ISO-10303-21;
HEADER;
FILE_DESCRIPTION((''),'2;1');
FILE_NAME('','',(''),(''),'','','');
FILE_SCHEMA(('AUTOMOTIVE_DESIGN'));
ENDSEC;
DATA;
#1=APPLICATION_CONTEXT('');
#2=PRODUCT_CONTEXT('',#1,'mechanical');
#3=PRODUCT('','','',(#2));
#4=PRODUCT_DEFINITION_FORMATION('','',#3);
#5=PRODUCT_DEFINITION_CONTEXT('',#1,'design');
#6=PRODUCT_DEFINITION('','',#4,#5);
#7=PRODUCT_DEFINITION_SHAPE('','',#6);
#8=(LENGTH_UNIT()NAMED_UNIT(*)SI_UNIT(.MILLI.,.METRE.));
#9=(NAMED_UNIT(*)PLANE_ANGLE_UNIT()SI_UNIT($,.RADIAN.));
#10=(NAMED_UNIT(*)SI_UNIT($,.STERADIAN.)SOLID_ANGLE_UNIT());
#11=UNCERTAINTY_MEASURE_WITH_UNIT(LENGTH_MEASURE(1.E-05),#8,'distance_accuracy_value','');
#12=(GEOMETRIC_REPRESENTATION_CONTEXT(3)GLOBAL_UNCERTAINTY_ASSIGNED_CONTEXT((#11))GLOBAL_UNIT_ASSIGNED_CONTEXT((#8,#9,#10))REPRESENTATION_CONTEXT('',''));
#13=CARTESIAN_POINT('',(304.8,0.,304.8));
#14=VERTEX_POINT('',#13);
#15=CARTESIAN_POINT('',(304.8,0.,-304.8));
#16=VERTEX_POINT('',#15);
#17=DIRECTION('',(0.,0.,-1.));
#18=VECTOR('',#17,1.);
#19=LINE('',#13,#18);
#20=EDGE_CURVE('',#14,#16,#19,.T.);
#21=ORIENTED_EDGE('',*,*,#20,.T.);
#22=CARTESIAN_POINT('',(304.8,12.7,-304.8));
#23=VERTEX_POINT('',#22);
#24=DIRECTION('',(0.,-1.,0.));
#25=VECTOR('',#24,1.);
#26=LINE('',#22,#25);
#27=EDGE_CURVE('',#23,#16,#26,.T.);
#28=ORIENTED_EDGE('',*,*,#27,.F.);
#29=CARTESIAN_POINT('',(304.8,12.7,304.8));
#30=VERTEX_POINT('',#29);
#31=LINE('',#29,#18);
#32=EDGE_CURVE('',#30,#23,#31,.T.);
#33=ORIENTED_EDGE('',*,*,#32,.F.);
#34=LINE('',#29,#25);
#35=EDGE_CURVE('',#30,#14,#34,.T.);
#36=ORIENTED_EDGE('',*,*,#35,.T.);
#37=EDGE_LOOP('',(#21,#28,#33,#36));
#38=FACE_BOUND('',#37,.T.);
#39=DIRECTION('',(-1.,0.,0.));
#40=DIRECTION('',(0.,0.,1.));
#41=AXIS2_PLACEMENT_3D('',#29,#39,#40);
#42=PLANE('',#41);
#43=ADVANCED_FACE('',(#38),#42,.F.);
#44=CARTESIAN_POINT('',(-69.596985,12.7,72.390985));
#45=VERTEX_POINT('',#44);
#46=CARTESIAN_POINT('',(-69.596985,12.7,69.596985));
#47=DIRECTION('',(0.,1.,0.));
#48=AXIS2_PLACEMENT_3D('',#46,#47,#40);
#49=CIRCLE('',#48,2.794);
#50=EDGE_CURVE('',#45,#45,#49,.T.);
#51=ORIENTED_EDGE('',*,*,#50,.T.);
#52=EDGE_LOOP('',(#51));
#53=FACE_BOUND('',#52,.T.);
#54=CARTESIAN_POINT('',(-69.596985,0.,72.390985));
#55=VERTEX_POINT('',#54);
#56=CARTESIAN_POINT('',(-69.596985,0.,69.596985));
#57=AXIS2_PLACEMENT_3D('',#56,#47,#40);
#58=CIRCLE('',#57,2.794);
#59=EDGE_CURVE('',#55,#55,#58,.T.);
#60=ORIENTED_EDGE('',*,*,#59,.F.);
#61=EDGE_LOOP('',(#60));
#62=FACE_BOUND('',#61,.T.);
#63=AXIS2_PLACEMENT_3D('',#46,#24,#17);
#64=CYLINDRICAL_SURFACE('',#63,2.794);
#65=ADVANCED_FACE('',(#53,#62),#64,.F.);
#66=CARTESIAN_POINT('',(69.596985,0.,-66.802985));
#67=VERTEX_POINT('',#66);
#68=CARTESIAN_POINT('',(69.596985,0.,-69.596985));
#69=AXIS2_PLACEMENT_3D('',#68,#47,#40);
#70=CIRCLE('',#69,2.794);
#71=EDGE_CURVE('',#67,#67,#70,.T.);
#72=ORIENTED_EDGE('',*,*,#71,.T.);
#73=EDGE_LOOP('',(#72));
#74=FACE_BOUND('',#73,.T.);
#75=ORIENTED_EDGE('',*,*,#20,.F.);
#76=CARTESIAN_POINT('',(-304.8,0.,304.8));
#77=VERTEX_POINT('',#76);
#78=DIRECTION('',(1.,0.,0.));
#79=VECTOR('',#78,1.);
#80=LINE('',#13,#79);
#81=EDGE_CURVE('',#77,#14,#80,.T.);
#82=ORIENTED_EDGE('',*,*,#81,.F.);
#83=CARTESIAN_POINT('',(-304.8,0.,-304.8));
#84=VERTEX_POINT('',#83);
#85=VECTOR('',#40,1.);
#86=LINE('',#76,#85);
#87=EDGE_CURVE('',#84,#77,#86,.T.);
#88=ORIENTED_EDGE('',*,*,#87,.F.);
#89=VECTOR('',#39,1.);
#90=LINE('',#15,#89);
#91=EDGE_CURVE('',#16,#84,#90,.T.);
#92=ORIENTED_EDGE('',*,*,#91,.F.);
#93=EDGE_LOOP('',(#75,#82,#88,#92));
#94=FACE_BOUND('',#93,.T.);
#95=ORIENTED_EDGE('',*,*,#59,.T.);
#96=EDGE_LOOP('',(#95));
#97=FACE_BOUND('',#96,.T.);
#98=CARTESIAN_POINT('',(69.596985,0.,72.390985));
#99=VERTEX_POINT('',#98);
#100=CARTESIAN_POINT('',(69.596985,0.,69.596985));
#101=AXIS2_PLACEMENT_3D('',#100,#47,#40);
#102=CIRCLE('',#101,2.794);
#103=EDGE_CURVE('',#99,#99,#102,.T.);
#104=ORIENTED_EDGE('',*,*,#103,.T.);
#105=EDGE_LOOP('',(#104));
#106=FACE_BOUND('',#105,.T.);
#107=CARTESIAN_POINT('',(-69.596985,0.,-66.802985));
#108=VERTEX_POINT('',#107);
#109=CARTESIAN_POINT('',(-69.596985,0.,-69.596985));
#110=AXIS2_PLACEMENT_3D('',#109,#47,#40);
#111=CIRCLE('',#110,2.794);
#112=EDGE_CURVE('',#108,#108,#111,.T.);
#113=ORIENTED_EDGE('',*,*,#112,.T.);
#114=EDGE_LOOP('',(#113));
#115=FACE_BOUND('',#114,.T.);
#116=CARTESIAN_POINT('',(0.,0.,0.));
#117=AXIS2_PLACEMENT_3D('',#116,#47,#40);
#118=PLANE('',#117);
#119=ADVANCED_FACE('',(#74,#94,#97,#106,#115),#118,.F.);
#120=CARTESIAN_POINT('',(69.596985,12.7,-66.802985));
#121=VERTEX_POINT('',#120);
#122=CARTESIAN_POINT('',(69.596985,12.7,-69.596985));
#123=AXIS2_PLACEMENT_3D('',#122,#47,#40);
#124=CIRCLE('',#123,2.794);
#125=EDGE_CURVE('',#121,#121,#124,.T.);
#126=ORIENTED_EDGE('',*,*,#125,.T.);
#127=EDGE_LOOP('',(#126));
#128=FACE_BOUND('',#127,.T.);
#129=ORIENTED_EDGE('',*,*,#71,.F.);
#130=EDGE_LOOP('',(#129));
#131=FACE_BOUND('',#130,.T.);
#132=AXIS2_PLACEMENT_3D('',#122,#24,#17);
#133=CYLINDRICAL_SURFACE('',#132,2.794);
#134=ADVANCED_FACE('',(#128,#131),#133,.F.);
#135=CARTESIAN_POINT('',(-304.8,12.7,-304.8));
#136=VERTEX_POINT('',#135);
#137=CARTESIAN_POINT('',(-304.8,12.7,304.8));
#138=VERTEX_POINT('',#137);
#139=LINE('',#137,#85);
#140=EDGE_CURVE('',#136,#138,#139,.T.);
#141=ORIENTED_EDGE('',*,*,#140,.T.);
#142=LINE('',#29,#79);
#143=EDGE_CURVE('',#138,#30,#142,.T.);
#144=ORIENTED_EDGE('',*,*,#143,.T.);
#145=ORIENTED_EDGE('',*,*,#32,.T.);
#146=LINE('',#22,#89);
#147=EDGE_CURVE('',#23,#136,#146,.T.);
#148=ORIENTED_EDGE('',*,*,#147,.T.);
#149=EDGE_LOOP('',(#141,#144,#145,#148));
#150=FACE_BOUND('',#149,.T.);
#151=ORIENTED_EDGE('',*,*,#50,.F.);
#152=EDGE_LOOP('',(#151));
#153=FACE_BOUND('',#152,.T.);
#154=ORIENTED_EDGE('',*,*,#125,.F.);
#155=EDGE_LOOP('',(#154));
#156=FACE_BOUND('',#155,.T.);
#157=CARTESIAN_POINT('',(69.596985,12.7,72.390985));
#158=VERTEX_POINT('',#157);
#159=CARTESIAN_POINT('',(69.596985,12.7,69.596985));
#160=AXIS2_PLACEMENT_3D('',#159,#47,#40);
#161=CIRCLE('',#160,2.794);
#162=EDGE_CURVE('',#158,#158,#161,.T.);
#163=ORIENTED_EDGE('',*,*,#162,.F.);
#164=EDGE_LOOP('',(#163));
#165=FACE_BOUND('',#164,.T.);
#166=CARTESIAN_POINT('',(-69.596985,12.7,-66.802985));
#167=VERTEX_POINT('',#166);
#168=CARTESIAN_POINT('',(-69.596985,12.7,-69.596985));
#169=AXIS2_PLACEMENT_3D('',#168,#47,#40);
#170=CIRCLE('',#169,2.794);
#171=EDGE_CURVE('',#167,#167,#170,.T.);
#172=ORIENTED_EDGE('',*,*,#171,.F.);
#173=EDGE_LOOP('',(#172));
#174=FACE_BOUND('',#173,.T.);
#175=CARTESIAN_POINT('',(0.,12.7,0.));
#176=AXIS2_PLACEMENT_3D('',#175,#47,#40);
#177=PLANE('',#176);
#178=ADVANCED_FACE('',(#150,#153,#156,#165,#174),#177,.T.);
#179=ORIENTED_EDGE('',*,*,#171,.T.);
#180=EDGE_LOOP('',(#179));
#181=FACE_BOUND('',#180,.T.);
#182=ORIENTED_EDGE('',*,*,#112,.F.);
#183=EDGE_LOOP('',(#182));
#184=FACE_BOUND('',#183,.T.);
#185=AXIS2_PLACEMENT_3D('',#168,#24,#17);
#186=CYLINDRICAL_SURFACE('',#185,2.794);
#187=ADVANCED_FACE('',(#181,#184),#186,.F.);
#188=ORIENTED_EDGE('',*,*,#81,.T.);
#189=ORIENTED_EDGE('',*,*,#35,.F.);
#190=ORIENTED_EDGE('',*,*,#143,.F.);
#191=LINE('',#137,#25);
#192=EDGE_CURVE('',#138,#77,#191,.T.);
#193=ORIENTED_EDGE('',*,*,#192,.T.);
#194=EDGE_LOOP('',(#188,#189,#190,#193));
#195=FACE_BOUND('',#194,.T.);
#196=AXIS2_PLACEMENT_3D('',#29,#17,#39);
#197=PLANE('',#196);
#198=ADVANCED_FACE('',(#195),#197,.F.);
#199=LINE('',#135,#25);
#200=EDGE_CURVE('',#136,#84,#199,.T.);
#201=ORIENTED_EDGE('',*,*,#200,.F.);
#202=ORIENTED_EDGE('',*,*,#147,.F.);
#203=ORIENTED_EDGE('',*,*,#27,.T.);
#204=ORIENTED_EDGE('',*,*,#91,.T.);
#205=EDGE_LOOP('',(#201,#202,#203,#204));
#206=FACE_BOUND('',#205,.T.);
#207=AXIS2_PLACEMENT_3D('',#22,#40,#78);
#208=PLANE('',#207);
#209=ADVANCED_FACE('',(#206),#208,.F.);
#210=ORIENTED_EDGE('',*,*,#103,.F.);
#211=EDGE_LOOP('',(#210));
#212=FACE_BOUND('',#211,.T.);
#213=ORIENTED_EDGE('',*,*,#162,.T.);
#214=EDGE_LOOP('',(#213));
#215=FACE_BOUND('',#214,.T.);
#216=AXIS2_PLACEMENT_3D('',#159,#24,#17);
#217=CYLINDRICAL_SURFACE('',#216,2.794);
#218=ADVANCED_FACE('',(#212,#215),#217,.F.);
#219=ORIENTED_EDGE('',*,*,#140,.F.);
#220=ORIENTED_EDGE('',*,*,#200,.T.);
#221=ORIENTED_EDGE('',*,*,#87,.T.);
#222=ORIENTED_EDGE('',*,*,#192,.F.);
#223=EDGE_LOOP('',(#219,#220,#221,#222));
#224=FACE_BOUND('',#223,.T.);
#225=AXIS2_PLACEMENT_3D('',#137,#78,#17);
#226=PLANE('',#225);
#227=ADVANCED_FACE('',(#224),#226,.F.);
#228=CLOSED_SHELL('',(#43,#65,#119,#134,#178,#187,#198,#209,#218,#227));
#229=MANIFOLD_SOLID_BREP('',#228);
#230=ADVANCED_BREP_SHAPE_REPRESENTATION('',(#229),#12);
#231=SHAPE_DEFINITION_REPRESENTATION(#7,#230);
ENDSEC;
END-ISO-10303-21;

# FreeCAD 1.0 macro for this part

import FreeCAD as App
import Part
import Sketcher
Q = App.Units.Quantity


def add_polygon(sketch, points):
    """Adds a closed chain of lines whose ends are joined by coincident constraints."""
    first, n = sketch.GeometryCount, len(points)
    for a, b in zip(points, points[1:] + points[:1]):
        sketch.addGeometry(Part.LineSegment(App.Vector(*a, 0), App.Vector(*b, 0)), False)
    for i in range(n):
        sketch.addConstraint(Sketcher.Constraint("Coincident", first + i, 2, first + (i + 1) % n, 1))

doc = App.newDocument("Part")
body = doc.addObject("PartDesign::Body", "Body")

# Sketch on XZ plane
sketch1 = body.newObject("Sketcher::SketchObject", "Sketch")
sketch1.AttachmentSupport = (doc.getObject("XZ_Plane"), [""])
sketch1.MapMode = "FlatFace"
add_polygon(sketch1, [(-304.8, -304.8), (-304.8, 304.8), (304.8, 304.8), (304.8, -304.8)])  # lines 0-3
sketch1.addGeometry(Part.Circle(App.Vector(-69.6, 69.6, 0), App.Vector(0, 0, 1), 2.8), False)  # 4
sketch1.addGeometry(Part.Circle(App.Vector(69.6, 69.6, 0), App.Vector(0, 0, 1), 2.8), False)  # 5
sketch1.addGeometry(Part.Circle(App.Vector(-69.6, -69.6, 0), App.Vector(0, 0, 1), 2.8), False)  # 6
sketch1.addGeometry(Part.Circle(App.Vector(69.6, -69.6, 0), App.Vector(0, 0, 1), 2.8), False)  # 7
sketch1.addConstraint([
    Sketcher.Constraint("Vertical", 0),
    Sketcher.Constraint("Horizontal", 1),
    Sketcher.Constraint("Vertical", 2),
    Sketcher.Constraint("Horizontal", 3),
    Sketcher.Constraint("Equal", 4, 5),
    Sketcher.Constraint("Equal", 5, 6),
    Sketcher.Constraint("Equal", 6, 7),
    Sketcher.Constraint("Symmetric", 5, 3, 6, 3, -1, 1),
    Sketcher.Constraint("Symmetric", 4, 3, 7, 3, -1, 1),
    Sketcher.Constraint("Symmetric", 0, 2, 2, 2, -1, 1),
    Sketcher.Constraint("Symmetric", 4, 3, 5, 3, -2),
    Sketcher.Constraint("Equal", 3, 0),
    Sketcher.Constraint("Diameter", 4, Q("0.22 in")),
    Sketcher.Constraint("DistanceX", 1, 1, 1, 2, Q("24 in")),
    Sketcher.Constraint("DistanceX", 4, 3, 5, 3, Q("139.19397 mm")),
    Sketcher.Constraint("DistanceY", 6, 3, 4, 3, Q("139.19397 mm")),
])
pad1 = body.newObject("PartDesign::Pad", "Pad")
pad1.Profile = sketch1
pad1.Length = Q("0.5 in")
pad1.Reversed = True

doc.recompute()
